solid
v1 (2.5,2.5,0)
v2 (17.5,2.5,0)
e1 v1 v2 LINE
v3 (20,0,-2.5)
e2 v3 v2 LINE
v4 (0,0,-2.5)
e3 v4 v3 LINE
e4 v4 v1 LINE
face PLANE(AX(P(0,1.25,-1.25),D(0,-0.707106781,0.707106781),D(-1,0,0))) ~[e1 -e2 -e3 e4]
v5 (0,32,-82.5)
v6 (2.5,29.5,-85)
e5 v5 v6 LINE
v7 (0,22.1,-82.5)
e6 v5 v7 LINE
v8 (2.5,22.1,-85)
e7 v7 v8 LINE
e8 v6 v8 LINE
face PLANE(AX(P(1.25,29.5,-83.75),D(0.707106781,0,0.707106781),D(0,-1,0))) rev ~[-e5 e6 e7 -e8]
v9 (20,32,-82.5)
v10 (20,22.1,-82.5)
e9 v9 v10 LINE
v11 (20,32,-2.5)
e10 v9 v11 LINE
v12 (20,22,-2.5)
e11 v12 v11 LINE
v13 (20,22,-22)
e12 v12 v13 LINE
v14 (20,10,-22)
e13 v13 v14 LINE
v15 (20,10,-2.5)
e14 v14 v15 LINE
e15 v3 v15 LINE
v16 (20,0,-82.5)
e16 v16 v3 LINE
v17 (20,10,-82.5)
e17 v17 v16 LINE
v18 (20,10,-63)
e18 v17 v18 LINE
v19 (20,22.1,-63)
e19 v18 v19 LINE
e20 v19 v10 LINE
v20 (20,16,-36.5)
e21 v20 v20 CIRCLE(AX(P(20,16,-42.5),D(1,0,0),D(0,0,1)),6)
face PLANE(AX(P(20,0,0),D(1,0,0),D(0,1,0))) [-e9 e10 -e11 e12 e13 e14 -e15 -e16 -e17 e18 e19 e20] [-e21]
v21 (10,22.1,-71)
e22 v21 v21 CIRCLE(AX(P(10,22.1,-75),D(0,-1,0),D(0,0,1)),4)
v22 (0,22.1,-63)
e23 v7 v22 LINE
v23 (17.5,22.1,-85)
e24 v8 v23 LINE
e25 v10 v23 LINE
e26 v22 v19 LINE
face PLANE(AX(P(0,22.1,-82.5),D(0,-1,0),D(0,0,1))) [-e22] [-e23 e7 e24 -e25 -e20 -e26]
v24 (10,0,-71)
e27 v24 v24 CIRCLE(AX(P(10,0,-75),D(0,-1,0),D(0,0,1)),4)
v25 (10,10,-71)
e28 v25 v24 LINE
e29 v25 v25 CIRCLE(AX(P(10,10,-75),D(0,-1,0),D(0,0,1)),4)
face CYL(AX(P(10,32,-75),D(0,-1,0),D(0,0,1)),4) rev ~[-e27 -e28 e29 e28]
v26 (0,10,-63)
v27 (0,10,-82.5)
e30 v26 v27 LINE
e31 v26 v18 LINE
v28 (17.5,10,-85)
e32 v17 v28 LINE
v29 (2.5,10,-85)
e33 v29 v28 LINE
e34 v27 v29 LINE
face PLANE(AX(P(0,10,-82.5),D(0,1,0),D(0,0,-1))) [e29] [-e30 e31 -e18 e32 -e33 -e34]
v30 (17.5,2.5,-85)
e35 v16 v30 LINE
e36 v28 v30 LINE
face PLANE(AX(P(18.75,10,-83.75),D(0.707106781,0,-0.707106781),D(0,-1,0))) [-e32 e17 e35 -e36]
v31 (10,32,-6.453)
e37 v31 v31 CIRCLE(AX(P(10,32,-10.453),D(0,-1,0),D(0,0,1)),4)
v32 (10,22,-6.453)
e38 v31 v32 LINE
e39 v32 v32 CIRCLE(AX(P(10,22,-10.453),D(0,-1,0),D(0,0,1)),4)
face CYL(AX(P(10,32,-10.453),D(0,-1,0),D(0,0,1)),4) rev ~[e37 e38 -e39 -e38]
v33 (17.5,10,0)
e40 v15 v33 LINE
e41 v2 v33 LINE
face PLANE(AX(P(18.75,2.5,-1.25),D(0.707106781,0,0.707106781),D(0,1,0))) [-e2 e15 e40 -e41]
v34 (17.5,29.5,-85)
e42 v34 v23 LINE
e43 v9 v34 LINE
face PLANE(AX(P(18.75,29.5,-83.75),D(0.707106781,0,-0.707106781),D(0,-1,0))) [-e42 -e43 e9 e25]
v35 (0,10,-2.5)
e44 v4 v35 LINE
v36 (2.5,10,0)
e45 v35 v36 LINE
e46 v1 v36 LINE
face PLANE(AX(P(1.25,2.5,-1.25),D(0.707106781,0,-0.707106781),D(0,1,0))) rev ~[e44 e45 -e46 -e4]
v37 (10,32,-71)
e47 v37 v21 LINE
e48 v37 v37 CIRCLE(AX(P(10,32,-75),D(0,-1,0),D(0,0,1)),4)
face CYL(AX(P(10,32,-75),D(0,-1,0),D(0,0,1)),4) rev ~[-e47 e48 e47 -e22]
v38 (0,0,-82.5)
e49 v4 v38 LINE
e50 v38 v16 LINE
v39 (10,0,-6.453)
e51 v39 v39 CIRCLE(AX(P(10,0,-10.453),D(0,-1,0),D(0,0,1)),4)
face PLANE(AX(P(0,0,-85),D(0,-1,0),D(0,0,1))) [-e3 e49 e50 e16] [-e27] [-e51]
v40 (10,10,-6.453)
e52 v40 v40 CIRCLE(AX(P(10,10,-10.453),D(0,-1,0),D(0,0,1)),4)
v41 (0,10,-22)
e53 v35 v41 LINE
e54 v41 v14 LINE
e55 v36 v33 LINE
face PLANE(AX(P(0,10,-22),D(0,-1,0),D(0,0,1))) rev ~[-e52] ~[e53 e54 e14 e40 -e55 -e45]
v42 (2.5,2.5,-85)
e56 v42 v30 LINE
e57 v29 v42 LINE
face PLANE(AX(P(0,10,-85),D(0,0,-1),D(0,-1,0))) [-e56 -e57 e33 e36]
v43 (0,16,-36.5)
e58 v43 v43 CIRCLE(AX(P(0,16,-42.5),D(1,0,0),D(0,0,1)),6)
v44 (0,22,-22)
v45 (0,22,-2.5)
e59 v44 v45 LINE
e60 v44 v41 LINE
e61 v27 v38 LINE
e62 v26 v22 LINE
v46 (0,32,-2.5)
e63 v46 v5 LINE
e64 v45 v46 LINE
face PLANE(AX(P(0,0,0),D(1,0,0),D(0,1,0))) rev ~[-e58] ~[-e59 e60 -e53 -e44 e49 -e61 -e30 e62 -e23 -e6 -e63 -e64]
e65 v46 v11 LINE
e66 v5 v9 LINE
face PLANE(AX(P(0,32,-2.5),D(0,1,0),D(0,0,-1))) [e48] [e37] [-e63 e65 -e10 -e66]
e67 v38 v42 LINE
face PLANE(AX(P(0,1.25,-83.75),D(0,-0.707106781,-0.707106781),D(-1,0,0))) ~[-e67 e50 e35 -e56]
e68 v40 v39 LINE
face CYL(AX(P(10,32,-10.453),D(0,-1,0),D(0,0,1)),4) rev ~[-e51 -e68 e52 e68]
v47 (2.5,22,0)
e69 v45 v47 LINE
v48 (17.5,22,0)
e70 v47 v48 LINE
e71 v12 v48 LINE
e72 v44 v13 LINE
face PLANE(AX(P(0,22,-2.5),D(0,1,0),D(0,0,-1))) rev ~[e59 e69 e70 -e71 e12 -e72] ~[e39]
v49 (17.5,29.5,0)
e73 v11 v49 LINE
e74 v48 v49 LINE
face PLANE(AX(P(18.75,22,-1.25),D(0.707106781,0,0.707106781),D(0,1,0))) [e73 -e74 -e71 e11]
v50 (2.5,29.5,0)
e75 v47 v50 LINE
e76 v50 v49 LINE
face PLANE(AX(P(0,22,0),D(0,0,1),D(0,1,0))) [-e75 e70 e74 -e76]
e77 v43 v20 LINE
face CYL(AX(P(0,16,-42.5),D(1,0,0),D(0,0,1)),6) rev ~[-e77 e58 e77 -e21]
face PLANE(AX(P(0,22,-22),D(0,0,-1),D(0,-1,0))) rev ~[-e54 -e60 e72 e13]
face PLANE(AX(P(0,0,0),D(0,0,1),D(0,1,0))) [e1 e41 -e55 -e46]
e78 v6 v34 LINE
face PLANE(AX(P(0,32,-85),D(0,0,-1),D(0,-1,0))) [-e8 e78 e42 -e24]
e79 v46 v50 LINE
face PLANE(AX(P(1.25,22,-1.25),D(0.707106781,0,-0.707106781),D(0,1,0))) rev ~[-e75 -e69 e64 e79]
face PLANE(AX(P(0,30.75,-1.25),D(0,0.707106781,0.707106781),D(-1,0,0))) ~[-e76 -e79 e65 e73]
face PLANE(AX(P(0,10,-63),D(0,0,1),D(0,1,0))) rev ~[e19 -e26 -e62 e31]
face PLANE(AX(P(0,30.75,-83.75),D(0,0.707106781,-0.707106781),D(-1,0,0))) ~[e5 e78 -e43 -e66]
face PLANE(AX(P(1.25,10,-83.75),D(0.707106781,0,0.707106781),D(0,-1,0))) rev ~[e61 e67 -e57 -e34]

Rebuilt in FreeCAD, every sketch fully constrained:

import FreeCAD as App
import Part
import Sketcher
Q = App.Units.Quantity


def edges_at(feature, points):
    """Names of the edges that pass closest to the given points."""
    edges = feature.Shape.Edges
    near = lambda p: min(range(len(edges)), key=lambda i: edges[i].distToShape(Part.Vertex(*p))[0])
    return sorted({f"Edge{near(p) + 1}" for p in points})


def add_polygon(sketch, points):
    """Adds a closed chain of lines whose ends are joined by coincident constraints."""
    first, n = sketch.GeometryCount, len(points)
    for a, b in zip(points, points[1:] + points[:1]):
        sketch.addGeometry(Part.LineSegment(App.Vector(*a, 0), App.Vector(*b, 0)), False)
    for i in range(n):
        sketch.addConstraint(Sketcher.Constraint("Coincident", first + i, 2, first + (i + 1) % n, 1))

doc = App.newDocument("Part")
body = doc.addObject("PartDesign::Body", "Body")

# Sketch on YZ plane
sketch1 = doc.addObject("Sketcher::SketchObject", "Sketch")
body.addObject(sketch1)
sketch1.AttachmentSupport = (doc.YZ_Plane, [""])
sketch1.MapMode = "FlatFace"
add_polygon(sketch1, [(0, -85), (10, -85), (10, -63), (22, -63), (22, -85), (32, -85), (32, 0), (22, 0), (22, -22), (10, -22), (10, 0), (0, 0)])  # lines 0-11
sketch1.addConstraint([
    Sketcher.Constraint("Horizontal", 0),
    Sketcher.Constraint("Vertical", 1),
    Sketcher.Constraint("Horizontal", 2),
    Sketcher.Constraint("Vertical", 3),
    Sketcher.Constraint("Horizontal", 4),
    Sketcher.Constraint("Vertical", 5),
    Sketcher.Constraint("Horizontal", 6),
    Sketcher.Constraint("Vertical", 7),
    Sketcher.Constraint("Horizontal", 8),
    Sketcher.Constraint("Vertical", 9),
    Sketcher.Constraint("Horizontal", 10),
    Sketcher.Constraint("Vertical", 11),
    Sketcher.Constraint("Coincident", 10, 2, -1, 1),
    Sketcher.Constraint("PointOnObject", 5, 2, -1),
    Sketcher.Constraint("Horizontal", 0, 2, 3, 2),
    Sketcher.Constraint("Vertical", 1, 2, 8, 2),
    Sketcher.Constraint("Equal", 0, 6),
    Sketcher.Constraint("Equal", 3, 7),
    Sketcher.Constraint("DistanceX", 0, 1, 0, 2, Q("10 mm")),
    Sketcher.Constraint("DistanceX", 8, 2, 8, 1, Q("12 mm")),
    Sketcher.Constraint("DistanceY", 1, 1, 1, 2, Q("22 mm")),
    Sketcher.Constraint("DistanceY", 5, 1, 5, 2, Q("85 mm")),
    Sketcher.Constraint("DistanceX", 2, 1, 2, 2, Q("12.1 mm")),
])
pad1 = doc.addObject("PartDesign::Pad", "Pad")
body.addObject(pad1)
pad1.Profile = sketch1
pad1.Length = 20
doc.recompute()

chamfer = doc.addObject("PartDesign::Chamfer", "Chamfer")
body.addObject(chamfer)
chamfer.Base = (pad1, edges_at(pad1, [(10, 0, -85)]))
chamfer.Size = 2.5
doc.recompute()

chamfer2 = doc.addObject("PartDesign::Chamfer", "Chamfer001")
body.addObject(chamfer2)
chamfer2.Base = (chamfer, edges_at(chamfer, [(10, 32, -85)]))
chamfer2.Size = 2.5
doc.recompute()

chamfer3 = doc.addObject("PartDesign::Chamfer", "Chamfer002")
body.addObject(chamfer3)
chamfer3.Base = (chamfer2, edges_at(chamfer2, [(10, 32, 0)]))
chamfer3.Size = 2.5
doc.recompute()

chamfer4 = doc.addObject("PartDesign::Chamfer", "Chamfer003")
body.addObject(chamfer4)
chamfer4.Base = (chamfer3, edges_at(chamfer3, [(10, 0, 0)]))
chamfer4.Size = 2.5

# Sketch on YZ plane
sketch2 = doc.addObject("Sketcher::SketchObject", "Sketch001")
body.addObject(sketch2)
sketch2.AttachmentSupport = (doc.YZ_Plane, [""])
sketch2.MapMode = "FlatFace"
sketch2.addGeometry(Part.Circle(App.Vector(16, -42, 0), App.Vector(0, 0, 1), 6), False)
sketch2.addConstraint([
    Sketcher.Constraint("Diameter", 0, Q("12 mm")),
    Sketcher.Constraint("DistanceX", -1, 1, 0, 3, Q("16 mm")),
    Sketcher.Constraint("DistanceY", 0, 3, -1, 1, Q("42.5 mm")),
])
doc.recompute()
hole = doc.addObject("PartDesign::Hole", "Hole")
body.addObject(hole)
hole.Profile = sketch2
hole.ThreadType = "None"
hole.Diameter = 12
hole.DepthType = "ThroughAll"
hole.Reversed = True

# Sketch on XZ plane
sketch3 = doc.addObject("Sketcher::SketchObject", "Sketch002")
body.addObject(sketch3)
sketch3.AttachmentSupport = (doc.XZ_Plane, [""])
sketch3.MapMode = "FlatFace"
sketch3.AttachmentOffset = App.Placement(App.Vector(0, 0, -32), App.Rotation())
sketch3.addGeometry([
    Part.Circle(App.Vector(10, -75, 0), App.Vector(0, 0, 1), 4),
    Part.Circle(App.Vector(10, -10.5, 0), App.Vector(0, 0, 1), 4),
], False)
sketch3.addConstraint([
    Sketcher.Constraint("Equal", 0, 1),
    Sketcher.Constraint("Vertical", 0, 3, 1, 3),
    Sketcher.Constraint("Diameter", 0, Q("8 mm")),
    Sketcher.Constraint("DistanceX", -1, 1, 0, 3, Q("10 mm")),
    Sketcher.Constraint("DistanceY", 0, 3, -1, 1, Q("75 mm")),
    Sketcher.Constraint("DistanceY", 1, 3, -1, 1, Q("10.453 mm")),
])
doc.recompute()
hole2 = doc.addObject("PartDesign::Hole", "Hole001")
body.addObject(hole2)
hole2.Profile = sketch3
hole2.ThreadType = "None"
hole2.Diameter = 8
hole2.DepthType = "ThroughAll"
hole2.Reversed = True
doc.recompute()

chamfer5 = doc.addObject("PartDesign::Chamfer", "Chamfer004")
body.addObject(chamfer5)
chamfer5.Base = (hole2, edges_at(hole2, [(20, 25.75, 0)]))
chamfer5.Size = 2.5
doc.recompute()

chamfer6 = doc.addObject("PartDesign::Chamfer", "Chamfer005")
body.addObject(chamfer6)
chamfer6.Base = (chamfer5, edges_at(chamfer5, [(20, 6.25, 0)]))
chamfer6.Size = 2.5
doc.recompute()

chamfer7 = doc.addObject("PartDesign::Chamfer", "Chamfer006")
body.addObject(chamfer7)
chamfer7.Base = (chamfer6, edges_at(chamfer6, [(20, 25.8, -85)]))
chamfer7.Size = 2.5
doc.recompute()

chamfer8 = doc.addObject("PartDesign::Chamfer", "Chamfer007")
body.addObject(chamfer8)
chamfer8.Base = (chamfer7, edges_at(chamfer7, [(20, 6.25, -85)]))
chamfer8.Size = 2.5
doc.recompute()

chamfer9 = doc.addObject("PartDesign::Chamfer", "Chamfer008")
body.addObject(chamfer9)
chamfer9.Base = (chamfer8, edges_at(chamfer8, [(0, 25.8, -85)]))
chamfer9.Size = 2.5
doc.recompute()

chamfer10 = doc.addObject("PartDesign::Chamfer", "Chamfer009")
body.addObject(chamfer10)
chamfer10.Base = (chamfer9, edges_at(chamfer9, [(0, 6.25, -85)]))
chamfer10.Size = 2.5
doc.recompute()

chamfer11 = doc.addObject("PartDesign::Chamfer", "Chamfer010")
body.addObject(chamfer11)
chamfer11.Base = (chamfer10, edges_at(chamfer10, [(0, 25.75, 0)]))
chamfer11.Size = 2.5
doc.recompute()

chamfer12 = doc.addObject("PartDesign::Chamfer", "Chamfer011")
body.addObject(chamfer12)
chamfer12.Base = (chamfer11, edges_at(chamfer11, [(0, 6.25, 0)]))
chamfer12.Size = 2.5

doc.recompute()
